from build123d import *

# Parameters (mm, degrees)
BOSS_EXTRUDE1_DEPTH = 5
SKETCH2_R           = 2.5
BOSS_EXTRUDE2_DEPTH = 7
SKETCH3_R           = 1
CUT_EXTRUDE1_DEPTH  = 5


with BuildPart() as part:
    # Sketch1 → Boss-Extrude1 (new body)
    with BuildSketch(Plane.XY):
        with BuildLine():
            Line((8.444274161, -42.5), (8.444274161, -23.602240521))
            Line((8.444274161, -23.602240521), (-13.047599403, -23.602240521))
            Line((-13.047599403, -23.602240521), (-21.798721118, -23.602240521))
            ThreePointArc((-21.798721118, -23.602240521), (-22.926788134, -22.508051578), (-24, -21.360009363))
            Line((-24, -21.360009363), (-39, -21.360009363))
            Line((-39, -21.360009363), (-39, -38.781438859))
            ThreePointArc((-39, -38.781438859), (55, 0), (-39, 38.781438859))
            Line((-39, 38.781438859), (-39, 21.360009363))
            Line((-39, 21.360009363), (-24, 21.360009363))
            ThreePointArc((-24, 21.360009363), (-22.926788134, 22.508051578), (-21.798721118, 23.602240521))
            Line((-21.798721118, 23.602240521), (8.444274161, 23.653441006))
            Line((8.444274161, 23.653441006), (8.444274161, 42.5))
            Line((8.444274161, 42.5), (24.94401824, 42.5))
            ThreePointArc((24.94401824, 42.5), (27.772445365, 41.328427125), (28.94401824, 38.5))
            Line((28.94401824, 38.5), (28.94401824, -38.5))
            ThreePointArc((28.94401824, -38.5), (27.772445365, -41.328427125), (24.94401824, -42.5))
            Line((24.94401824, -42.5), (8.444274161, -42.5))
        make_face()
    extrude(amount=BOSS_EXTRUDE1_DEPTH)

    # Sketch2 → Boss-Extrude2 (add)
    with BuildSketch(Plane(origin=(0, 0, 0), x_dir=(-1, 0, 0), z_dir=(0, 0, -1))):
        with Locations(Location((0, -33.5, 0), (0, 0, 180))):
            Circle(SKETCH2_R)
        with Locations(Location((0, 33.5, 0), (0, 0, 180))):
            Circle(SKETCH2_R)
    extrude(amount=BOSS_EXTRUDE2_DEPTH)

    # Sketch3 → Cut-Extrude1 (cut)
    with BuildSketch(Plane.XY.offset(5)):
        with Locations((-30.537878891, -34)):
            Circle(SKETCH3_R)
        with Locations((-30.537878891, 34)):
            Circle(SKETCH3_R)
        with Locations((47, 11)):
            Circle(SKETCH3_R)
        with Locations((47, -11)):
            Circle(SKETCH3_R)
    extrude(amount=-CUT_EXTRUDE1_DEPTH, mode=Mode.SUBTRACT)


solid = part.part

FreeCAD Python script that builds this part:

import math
import FreeCAD as App
import Part
import Sketcher
from FreeCAD import Vector
Q = App.Units.Quantity

doc = App.newDocument("Part")
params = doc.addObject("Spreadsheet::Sheet", "Params")
for row, (alias, value) in enumerate([
    ("sketch1_radius", "55 mm"),
    ("sketch1_radius2", "4 mm"),
    ("sketch1_width", "15 mm"),
    ("sketch1_height", "77 mm"),
    ("pad1_length", "5 mm"),
    ("sketch2_diameter", "5 mm"),
    ("pad2_length", "7 mm"),
    ("sketch3_diameter", "2 mm"),
    ("pocket1_length", "5 mm"),
], start=1):
    params.set(f"A{row}", alias)
    params.set(f"B{row}", "=" + value)
    params.setAlias(f"B{row}", alias)

body = doc.addObject("PartDesign::Body", "Body")

# Sketch on XY plane
sketch1 = body.newObject("Sketcher::SketchObject", "Sketch")
sketch1.AttachmentSupport = (doc.getObject("XY_Plane"), [""])
sketch1.MapMode = "FlatFace"
sketch1.addGeometry([
    Part.LineSegment(Vector(8.4, -42.5, 0), Vector(8.4, -23.6, 0)),  # 0
    Part.LineSegment(Vector(8.4, -23.6, 0), Vector(-21.8, -23.6, 0)),  # 1
    Part.ArcOfCircle(Part.Circle(Vector(0, 0, 0), Vector(0, 0, 1), 32.1), math.radians(-138.33), math.radians(-132.73)),  # 2
    Part.LineSegment(Vector(-24, -21.4, 0), Vector(-39, -21.4, 0)),  # 3
    Part.LineSegment(Vector(-39, -21.4, 0), Vector(-39, -38.8, 0)),  # 4
    Part.ArcOfCircle(Part.Circle(Vector(0, 0, 0), Vector(0, 0, 1), 55), math.radians(-135), math.radians(135)),  # 5
    Part.LineSegment(Vector(-39, 38.8, 0), Vector(-39, 21.4, 0)),  # 6
    Part.LineSegment(Vector(-39, 21.4, 0), Vector(-24, 21.4, 0)),  # 7
    Part.ArcOfCircle(Part.Circle(Vector(0, 0, 0), Vector(0, 0, 1), 32.1), math.radians(132.73), math.radians(138.33)),  # 8
    Part.LineSegment(Vector(-21.8, 23.6, 0), Vector(8.4, 23.7, 0)),  # 9
    Part.LineSegment(Vector(8.4, 23.7, 0), Vector(8.4, 42.5, 0)),  # 10
    Part.LineSegment(Vector(8.4, 42.5, 0), Vector(24.9, 42.5, 0)),  # 11
    Part.ArcOfCircle(Part.Circle(Vector(24.9, 38.5, 0), Vector(0, 0, 1), 4), math.radians(0), math.radians(90)),  # 12
    Part.LineSegment(Vector(28.9, 38.5, 0), Vector(28.9, -38.5, 0)),  # 13
    Part.ArcOfCircle(Part.Circle(Vector(24.9, -38.5, 0), Vector(0, 0, 1), 4), math.radians(-90), math.radians(0)),  # 14
    Part.LineSegment(Vector(24.9, -42.5, 0), Vector(8.4, -42.5, 0)),  # 15
], False)
sketch1.addConstraint([
    Sketcher.Constraint("Coincident", 0, 2, 1, 1),
    Sketcher.Constraint("Coincident", 1, 2, 2, 2),
    Sketcher.Constraint("Coincident", 2, 1, 3, 1),
    Sketcher.Constraint("Coincident", 3, 2, 4, 1),
    Sketcher.Constraint("Coincident", 4, 2, 5, 1),
    Sketcher.Constraint("Coincident", 5, 2, 6, 1),
    Sketcher.Constraint("Coincident", 6, 2, 7, 1),
    Sketcher.Constraint("Coincident", 7, 2, 8, 2),
    Sketcher.Constraint("Coincident", 8, 1, 9, 1),
    Sketcher.Constraint("Coincident", 9, 2, 10, 1),
    Sketcher.Constraint("Coincident", 10, 2, 11, 1),
    Sketcher.Constraint("Tangent", 11, 2, 12, 2),
    Sketcher.Constraint("Tangent", 12, 1, 13, 1),
    Sketcher.Constraint("Tangent", 13, 2, 14, 2),
    Sketcher.Constraint("Tangent", 14, 1, 15, 1),
    Sketcher.Constraint("Coincident", 15, 2, 0, 1),
    Sketcher.Constraint("Vertical", 0),
    Sketcher.Constraint("Horizontal", 1),
    Sketcher.Constraint("Horizontal", 3),
    Sketcher.Constraint("Vertical", 4),
    Sketcher.Constraint("Vertical", 6),
    Sketcher.Constraint("Horizontal", 7),
    Sketcher.Constraint("Vertical", 10),
    Sketcher.Constraint("Horizontal", 11),
    Sketcher.Constraint("Vertical", 13),
    Sketcher.Constraint("Horizontal", 15),
    Sketcher.Constraint("Coincident", 2, 3, -1, 1),
    Sketcher.Constraint("Coincident", 5, 3, -1, 1),
    Sketcher.Constraint("Coincident", 8, 3, -1, 1),
    Sketcher.Constraint("Equal", 2, 8),
    Sketcher.Constraint("Equal", 12, 14),
    Sketcher.Constraint("Symmetric", 3, 2, 6, 2, -1),
    Sketcher.Constraint("Symmetric", 10, 2, 15, 2, -1),
    Sketcher.Constraint("Vertical", 1, 2, 8, 1),
    Sketcher.Constraint("Radius", 5, Q("55 mm")),
    Sketcher.Constraint("Radius", 12, Q("4 mm")),
    Sketcher.Constraint("DistanceX", 3, 2, 3, 1, Q("15 mm")),
    Sketcher.Constraint("DistanceY", 13, 2, 13, 1, Q("77 mm")),
    Sketcher.Constraint("DistanceX", 2, 1, -1, 1, Q("24 mm")),
    Sketcher.Constraint("Radius", 2, Q("32.128648 mm")),
    Sketcher.Constraint("DistanceY", 0, 1, 0, 2, Q("18.897759 mm")),
    Sketcher.Constraint("DistanceY", 10, 1, 10, 2, Q("18.846559 mm")),
    Sketcher.Constraint("Distance", 9, Q("30.243039 mm")),
    Sketcher.Constraint("DistanceX", 11, 1, 11, 2, Q("16.499744 mm")),
])
sketch1.setExpression("Constraints[34]", "Params.sketch1_radius")
sketch1.setExpression("Constraints[35]", "Params.sketch1_radius2")
sketch1.setExpression("Constraints[36]", "Params.sketch1_width")
sketch1.setExpression("Constraints[37]", "Params.sketch1_height")
pad1 = body.newObject("PartDesign::Pad", "Pad")
pad1.Profile = sketch1
pad1.setExpression("Length", "Params.pad1_length")

# Sketch on XY plane
sketch2 = body.newObject("Sketcher::SketchObject", "Sketch001")
sketch2.AttachmentSupport = (doc.getObject("XY_Plane"), [""])
sketch2.MapMode = "FlatFace"
sketch2.addGeometry([
    Part.Circle(Vector(0, -33.5, 0), Vector(0, 0, 1), 2.5),
    Part.Circle(Vector(0, 33.5, 0), Vector(0, 0, 1), 2.5),
], False)
sketch2.addConstraint([
    Sketcher.Constraint("Equal", 0, 1),
    Sketcher.Constraint("Symmetric", 0, 3, 1, 3, -1, 1),
    Sketcher.Constraint("PointOnObject", 0, 3, -2),
    Sketcher.Constraint("Diameter", 0, Q("5 mm")),
    Sketcher.Constraint("DistanceY", 0, 3, 1, 3, Q("67 mm")),
])
sketch2.setExpression("Constraints[3]", "Params.sketch2_diameter")
pad2 = body.newObject("PartDesign::Pad", "Pad001")
pad2.Profile = sketch2
pad2.setExpression("Length", "Params.pad2_length")
pad2.Reversed = True

# Sketch on XY plane
sketch3 = body.newObject("Sketcher::SketchObject", "Sketch002")
sketch3.AttachmentSupport = (doc.getObject("XY_Plane"), [""])
sketch3.MapMode = "FlatFace"
sketch3.AttachmentOffset = App.Placement(Vector(0, 0, 5), App.Rotation())
sketch3.addGeometry([
    Part.Circle(Vector(-30.5, -34, 0), Vector(0, 0, 1), 1),
    Part.Circle(Vector(-30.5, 34, 0), Vector(0, 0, 1), 1),
    Part.Circle(Vector(47, 11, 0), Vector(0, 0, 1), 1),
    Part.Circle(Vector(47, -11, 0), Vector(0, 0, 1), 1),
], False)
sketch3.addConstraint([
    Sketcher.Constraint("Equal", 0, 1),
    Sketcher.Constraint("Equal", 1, 2),
    Sketcher.Constraint("Equal", 2, 3),
    Sketcher.Constraint("Symmetric", 0, 3, 1, 3, -1),
    Sketcher.Constraint("Symmetric", 2, 3, 3, 3, -1),
    Sketcher.Constraint("Diameter", 0, Q("2 mm")),
    Sketcher.Constraint("DistanceY", 0, 3, -1, 1, Q("34 mm")),
    Sketcher.Constraint("DistanceX", -1, 1, 2, 3, Q("47 mm")),
    Sketcher.Constraint("DistanceY", -1, 1, 2, 3, Q("11 mm")),
    Sketcher.Constraint("DistanceX", 0, 3, -1, 1, Q("30.537879 mm")),
])
sketch3.setExpression("Constraints[5]", "Params.sketch3_diameter")
pocket1 = body.newObject("PartDesign::Pocket", "Pocket")
pocket1.Profile = sketch3
pocket1.setExpression("Length", "Params.pocket1_length")

doc.recompute()
